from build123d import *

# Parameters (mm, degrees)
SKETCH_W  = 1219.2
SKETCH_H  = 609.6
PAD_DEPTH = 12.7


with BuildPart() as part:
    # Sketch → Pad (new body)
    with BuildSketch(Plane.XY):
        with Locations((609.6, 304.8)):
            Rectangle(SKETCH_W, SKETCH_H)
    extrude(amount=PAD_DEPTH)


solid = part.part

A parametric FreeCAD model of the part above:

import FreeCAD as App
import Part
import Sketcher

V = App.Vector
Q = App.Units.Quantity


def add_polygon(sketch, points):
    """Adds a closed chain of lines whose ends are joined by coincident constraints."""
    first, n = sketch.GeometryCount, len(points)
    for a, b in zip(points, points[1:] + points[:1]):
        sketch.addGeometry(Part.LineSegment(App.Vector(*a, 0), App.Vector(*b, 0)), False)
    for i in range(n):
        sketch.addConstraint(Sketcher.Constraint("Coincident", first + i, 2, first + (i + 1) % n, 1))

doc = App.newDocument("Part")
body = doc.addObject("PartDesign::Body", "Body")

sketch1 = body.newObject("Sketcher::SketchObject", "Sketch")
sketch1.AttachmentSupport = (doc.getObject("XY_Plane"), [""])
sketch1.MapMode = "FlatFace"
add_polygon(sketch1, [(0, 610), (0, 0), (1219, 0), (1219, 610)])
sketch1.addConstraint([
    Sketcher.Constraint("Vertical", 0),
    Sketcher.Constraint("Horizontal", 1),
    Sketcher.Constraint("Vertical", 2),
    Sketcher.Constraint("Horizontal", 3),
    Sketcher.Constraint("Coincident", 0, 2, -1, 1),
    Sketcher.Constraint("DistanceX", 1, 1, 1, 2, Q("48 in")),
    Sketcher.Constraint("DistanceY", 0, 2, 0, 1, Q("24 in")),
])
pad1 = body.newObject("PartDesign::Pad", "Pad")
pad1.Profile = sketch1
pad1.Length = Q("0.5 in")

doc.recompute()
